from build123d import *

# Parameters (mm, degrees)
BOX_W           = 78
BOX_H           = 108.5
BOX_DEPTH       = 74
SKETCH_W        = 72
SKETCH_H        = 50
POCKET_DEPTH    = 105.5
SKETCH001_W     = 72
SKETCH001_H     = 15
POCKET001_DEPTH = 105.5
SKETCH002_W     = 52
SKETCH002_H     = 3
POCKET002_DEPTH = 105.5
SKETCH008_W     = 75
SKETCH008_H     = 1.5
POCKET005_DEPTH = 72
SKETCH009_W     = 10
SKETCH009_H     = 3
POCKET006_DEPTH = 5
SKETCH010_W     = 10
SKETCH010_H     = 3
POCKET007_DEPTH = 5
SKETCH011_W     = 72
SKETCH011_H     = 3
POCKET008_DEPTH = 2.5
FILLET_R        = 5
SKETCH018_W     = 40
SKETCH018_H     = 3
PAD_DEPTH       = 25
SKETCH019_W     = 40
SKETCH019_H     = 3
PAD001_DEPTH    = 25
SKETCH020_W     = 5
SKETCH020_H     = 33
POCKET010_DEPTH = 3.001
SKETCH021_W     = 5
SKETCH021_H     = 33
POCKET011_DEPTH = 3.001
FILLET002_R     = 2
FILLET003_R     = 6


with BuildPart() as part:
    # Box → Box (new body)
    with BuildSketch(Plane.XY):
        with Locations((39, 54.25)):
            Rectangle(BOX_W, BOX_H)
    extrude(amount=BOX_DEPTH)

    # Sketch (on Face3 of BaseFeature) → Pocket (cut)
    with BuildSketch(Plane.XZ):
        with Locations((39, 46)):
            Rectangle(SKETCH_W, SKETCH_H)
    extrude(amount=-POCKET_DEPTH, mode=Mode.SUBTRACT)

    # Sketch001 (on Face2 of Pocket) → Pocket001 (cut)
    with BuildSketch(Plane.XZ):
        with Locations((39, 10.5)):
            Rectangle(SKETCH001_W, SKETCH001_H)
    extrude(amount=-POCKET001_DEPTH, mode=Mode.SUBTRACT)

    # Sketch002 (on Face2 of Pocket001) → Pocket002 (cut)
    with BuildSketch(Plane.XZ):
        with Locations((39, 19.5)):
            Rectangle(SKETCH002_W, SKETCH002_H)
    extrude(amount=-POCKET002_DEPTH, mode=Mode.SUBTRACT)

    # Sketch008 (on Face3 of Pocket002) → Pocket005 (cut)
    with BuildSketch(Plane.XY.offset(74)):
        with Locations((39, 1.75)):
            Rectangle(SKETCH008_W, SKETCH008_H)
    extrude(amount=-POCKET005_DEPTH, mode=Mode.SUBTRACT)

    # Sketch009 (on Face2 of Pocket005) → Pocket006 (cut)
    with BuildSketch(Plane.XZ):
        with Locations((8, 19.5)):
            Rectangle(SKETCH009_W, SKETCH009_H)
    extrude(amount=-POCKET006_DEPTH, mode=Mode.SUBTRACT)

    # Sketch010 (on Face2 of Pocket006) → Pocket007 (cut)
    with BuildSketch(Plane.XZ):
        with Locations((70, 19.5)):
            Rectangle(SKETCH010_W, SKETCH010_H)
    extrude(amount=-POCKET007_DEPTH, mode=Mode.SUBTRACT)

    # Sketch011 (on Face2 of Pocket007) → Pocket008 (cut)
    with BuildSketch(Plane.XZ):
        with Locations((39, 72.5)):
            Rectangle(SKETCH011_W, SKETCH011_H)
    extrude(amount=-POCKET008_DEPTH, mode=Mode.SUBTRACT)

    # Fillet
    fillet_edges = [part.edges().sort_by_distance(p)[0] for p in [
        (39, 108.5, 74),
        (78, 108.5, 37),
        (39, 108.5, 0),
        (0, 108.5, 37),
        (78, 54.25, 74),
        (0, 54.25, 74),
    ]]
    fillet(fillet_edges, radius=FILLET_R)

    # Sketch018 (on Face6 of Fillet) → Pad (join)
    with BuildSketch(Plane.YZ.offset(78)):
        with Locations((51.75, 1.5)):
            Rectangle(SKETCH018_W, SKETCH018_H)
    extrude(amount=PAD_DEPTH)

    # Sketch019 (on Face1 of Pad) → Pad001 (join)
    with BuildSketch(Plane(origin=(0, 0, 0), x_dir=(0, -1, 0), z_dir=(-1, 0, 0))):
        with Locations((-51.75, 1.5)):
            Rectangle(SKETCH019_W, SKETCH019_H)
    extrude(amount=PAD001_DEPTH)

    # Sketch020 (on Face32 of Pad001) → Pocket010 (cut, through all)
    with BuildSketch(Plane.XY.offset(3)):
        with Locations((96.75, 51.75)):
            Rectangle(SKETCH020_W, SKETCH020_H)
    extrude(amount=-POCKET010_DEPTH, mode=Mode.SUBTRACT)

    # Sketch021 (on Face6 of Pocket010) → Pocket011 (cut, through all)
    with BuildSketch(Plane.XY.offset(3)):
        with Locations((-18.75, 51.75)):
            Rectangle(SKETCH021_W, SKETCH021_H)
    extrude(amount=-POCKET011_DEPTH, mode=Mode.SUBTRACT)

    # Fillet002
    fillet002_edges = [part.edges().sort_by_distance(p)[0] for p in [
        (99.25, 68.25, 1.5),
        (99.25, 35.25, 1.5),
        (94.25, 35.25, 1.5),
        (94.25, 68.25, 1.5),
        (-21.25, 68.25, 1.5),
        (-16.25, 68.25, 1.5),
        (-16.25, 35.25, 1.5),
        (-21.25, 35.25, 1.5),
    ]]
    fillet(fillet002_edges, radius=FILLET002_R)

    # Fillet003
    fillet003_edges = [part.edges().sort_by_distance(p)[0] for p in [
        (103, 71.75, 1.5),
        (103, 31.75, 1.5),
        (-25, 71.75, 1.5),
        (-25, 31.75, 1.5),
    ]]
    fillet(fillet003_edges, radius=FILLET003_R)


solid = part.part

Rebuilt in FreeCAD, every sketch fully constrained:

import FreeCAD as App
import Part
import Sketcher
from FreeCAD import Vector


def edges_at(feature, points):
    """Names of the edges that pass closest to the given points."""
    edges = feature.Shape.Edges
    near = lambda p: min(range(len(edges)), key=lambda i: edges[i].distToShape(Part.Vertex(*p))[0])
    return sorted({f"Edge{near(p) + 1}" for p in points})

doc = App.newDocument("Part")
params = doc.addObject("Spreadsheet::Sheet", "Params")
for row, (alias, value) in enumerate([
    ("sketch1_width", "78 mm"),
    ("sketch1_height", "108.5 mm"),
    ("pad1_length", "74 mm"),
    ("sketch2_width", "72 mm"),
    ("sketch2_height", "50 mm"),
    ("pocket1_length", "105.5 mm"),
    ("sketch3_width", "72 mm"),
    ("sketch3_height", "15 mm"),
    ("pocket2_length", "105.5 mm"),
    ("sketch4_width", "52 mm"),
    ("sketch4_height", "3 mm"),
    ("pocket3_length", "105.5 mm"),
    ("sketch5_width", "75 mm"),
    ("sketch5_height", "1.5 mm"),
    ("pocket4_length", "72 mm"),
    ("sketch6_width", "10 mm"),
    ("sketch6_height", "3 mm"),
    ("pocket5_length", "5 mm"),
    ("sketch7_width", "10 mm"),
    ("sketch7_height", "3 mm"),
    ("pocket6_length", "5 mm"),
    ("sketch8_width", "72 mm"),
    ("sketch8_height", "3 mm"),
    ("pocket7_length", "2.5 mm"),
    ("fillet_radius", "5 mm"),
    ("sketch9_width", "40 mm"),
    ("sketch9_height", "3 mm"),
    ("pad2_length", "25 mm"),
    ("sketch10_width", "40 mm"),
    ("sketch10_height", "3 mm"),
    ("pad3_length", "25 mm"),
    ("sketch11_width", "5 mm"),
    ("sketch11_height", "33 mm"),
    ("sketch12_width", "5 mm"),
    ("sketch12_height", "33 mm"),
    ("fillet2_radius", "2 mm"),
    ("fillet3_radius", "6 mm"),
], start=1):
    params.set(f"A{row}", alias)
    params.set(f"B{row}", "=" + value)
    params.setAlias(f"B{row}", alias)

body = doc.addObject("PartDesign::Body", "Body")

sketch1 = body.newObject("Sketcher::SketchObject", "Sketch")
sketch1.AttachmentSupport = (doc.getObject("XY_Plane"), [""])
sketch1.MapMode = "FlatFace"
sketch1.addGeometry(Part.LineSegment(Vector(0, 108, 0), Vector(0, 0, 0)), False)
sketch1.addGeometry(Part.LineSegment(Vector(0, 0, 0), Vector(78, 0, 0)), False)
sketch1.addGeometry(Part.LineSegment(Vector(78, 0, 0), Vector(78, 108, 0)), False)
sketch1.addGeometry(Part.LineSegment(Vector(78, 108, 0), Vector(0, 108, 0)), False)
sketch1.addConstraint(Sketcher.Constraint("Coincident", 0, 2, 1, 1))
sketch1.addConstraint(Sketcher.Constraint("Coincident", 1, 2, 2, 1))
sketch1.addConstraint(Sketcher.Constraint("Coincident", 2, 2, 3, 1))
sketch1.addConstraint(Sketcher.Constraint("Coincident", 3, 2, 0, 1))
sketch1.addConstraint(Sketcher.Constraint("Vertical", 0))
sketch1.addConstraint(Sketcher.Constraint("Horizontal", 1))
sketch1.addConstraint(Sketcher.Constraint("Vertical", 2))
sketch1.addConstraint(Sketcher.Constraint("Horizontal", 3))
sketch1.addConstraint(Sketcher.Constraint("Coincident", 0, 2, -1, 1))
sketch1.addConstraint(Sketcher.Constraint("DistanceX", 1, 1, 1, 2, 78.0))
sketch1.addConstraint(Sketcher.Constraint("DistanceY", 0, 2, 0, 1, 108.5))
sketch1.setExpression("Constraints[9]", "Params.sketch1_width")
sketch1.setExpression("Constraints[10]", "Params.sketch1_height")
pad1 = body.newObject("PartDesign::Pad", "Pad")
pad1.Profile = sketch1
pad1.setExpression("Length", "Params.pad1_length")

sketch2 = body.newObject("Sketcher::SketchObject", "Sketch001")
sketch2.AttachmentSupport = (doc.getObject("XZ_Plane"), [""])
sketch2.MapMode = "FlatFace"
sketch2.addGeometry(Part.LineSegment(Vector(3, 71, 0), Vector(3, 21, 0)), False)
sketch2.addGeometry(Part.LineSegment(Vector(3, 21, 0), Vector(75, 21, 0)), False)
sketch2.addGeometry(Part.LineSegment(Vector(75, 21, 0), Vector(75, 71, 0)), False)
sketch2.addGeometry(Part.LineSegment(Vector(75, 71, 0), Vector(3, 71, 0)), False)
sketch2.addConstraint(Sketcher.Constraint("Coincident", 0, 2, 1, 1))
sketch2.addConstraint(Sketcher.Constraint("Coincident", 1, 2, 2, 1))
sketch2.addConstraint(Sketcher.Constraint("Coincident", 2, 2, 3, 1))
sketch2.addConstraint(Sketcher.Constraint("Coincident", 3, 2, 0, 1))
sketch2.addConstraint(Sketcher.Constraint("Vertical", 0))
sketch2.addConstraint(Sketcher.Constraint("Horizontal", 1))
sketch2.addConstraint(Sketcher.Constraint("Vertical", 2))
sketch2.addConstraint(Sketcher.Constraint("Horizontal", 3))
sketch2.addConstraint(Sketcher.Constraint("DistanceX", 1, 1, 1, 2, 72.0))
sketch2.addConstraint(Sketcher.Constraint("DistanceY", 0, 2, 0, 1, 50.0))
sketch2.addConstraint(Sketcher.Constraint("DistanceX", -1, 1, 0, 2, 3.0))
sketch2.addConstraint(Sketcher.Constraint("DistanceY", -1, 1, 0, 2, 21.0))
sketch2.setExpression("Constraints[8]", "Params.sketch2_width")
sketch2.setExpression("Constraints[9]", "Params.sketch2_height")
pocket1 = body.newObject("PartDesign::Pocket", "Pocket")
pocket1.Profile = sketch2
pocket1.setExpression("Length", "Params.pocket1_length")

sketch3 = body.newObject("Sketcher::SketchObject", "Sketch002")
sketch3.AttachmentSupport = (doc.getObject("XZ_Plane"), [""])
sketch3.MapMode = "FlatFace"
sketch3.addGeometry(Part.LineSegment(Vector(3, 18, 0), Vector(3, 3, 0)), False)
sketch3.addGeometry(Part.LineSegment(Vector(3, 3, 0), Vector(75, 3, 0)), False)
sketch3.addGeometry(Part.LineSegment(Vector(75, 3, 0), Vector(75, 18, 0)), False)
sketch3.addGeometry(Part.LineSegment(Vector(75, 18, 0), Vector(3, 18, 0)), False)
sketch3.addConstraint(Sketcher.Constraint("Coincident", 0, 2, 1, 1))
sketch3.addConstraint(Sketcher.Constraint("Coincident", 1, 2, 2, 1))
sketch3.addConstraint(Sketcher.Constraint("Coincident", 2, 2, 3, 1))
sketch3.addConstraint(Sketcher.Constraint("Coincident", 3, 2, 0, 1))
sketch3.addConstraint(Sketcher.Constraint("Vertical", 0))
sketch3.addConstraint(Sketcher.Constraint("Horizontal", 1))
sketch3.addConstraint(Sketcher.Constraint("Vertical", 2))
sketch3.addConstraint(Sketcher.Constraint("Horizontal", 3))
sketch3.addConstraint(Sketcher.Constraint("DistanceX", 1, 1, 1, 2, 72.0))
sketch3.addConstraint(Sketcher.Constraint("DistanceY", 0, 2, 0, 1, 15.0))
sketch3.addConstraint(Sketcher.Constraint("DistanceX", -1, 1, 0, 2, 3.0))
sketch3.addConstraint(Sketcher.Constraint("DistanceY", -1, 1, 0, 2, 3.0))
sketch3.setExpression("Constraints[8]", "Params.sketch3_width")
sketch3.setExpression("Constraints[9]", "Params.sketch3_height")
pocket2 = body.newObject("PartDesign::Pocket", "Pocket001")
pocket2.Profile = sketch3
pocket2.setExpression("Length", "Params.pocket2_length")

sketch4 = body.newObject("Sketcher::SketchObject", "Sketch003")
sketch4.AttachmentSupport = (doc.getObject("XZ_Plane"), [""])
sketch4.MapMode = "FlatFace"
sketch4.addGeometry(Part.LineSegment(Vector(13, 21, 0), Vector(13, 18, 0)), False)
sketch4.addGeometry(Part.LineSegment(Vector(13, 18, 0), Vector(65, 18, 0)), False)
sketch4.addGeometry(Part.LineSegment(Vector(65, 18, 0), Vector(65, 21, 0)), False)
sketch4.addGeometry(Part.LineSegment(Vector(65, 21, 0), Vector(13, 21, 0)), False)
sketch4.addConstraint(Sketcher.Constraint("Coincident", 0, 2, 1, 1))
sketch4.addConstraint(Sketcher.Constraint("Coincident", 1, 2, 2, 1))
sketch4.addConstraint(Sketcher.Constraint("Coincident", 2, 2, 3, 1))
sketch4.addConstraint(Sketcher.Constraint("Coincident", 3, 2, 0, 1))
sketch4.addConstraint(Sketcher.Constraint("Vertical", 0))
sketch4.addConstraint(Sketcher.Constraint("Horizontal", 1))
sketch4.addConstraint(Sketcher.Constraint("Vertical", 2))
sketch4.addConstraint(Sketcher.Constraint("Horizontal", 3))
sketch4.addConstraint(Sketcher.Constraint("DistanceX", 1, 1, 1, 2, 52.0))
sketch4.addConstraint(Sketcher.Constraint("DistanceY", 0, 2, 0, 1, 3.0))
sketch4.addConstraint(Sketcher.Constraint("DistanceX", -1, 1, 0, 2, 13.0))
sketch4.addConstraint(Sketcher.Constraint("DistanceY", -1, 1, 0, 2, 18.0))
sketch4.setExpression("Constraints[8]", "Params.sketch4_width")
sketch4.setExpression("Constraints[9]", "Params.sketch4_height")
pocket3 = body.newObject("PartDesign::Pocket", "Pocket002")
pocket3.Profile = sketch4
pocket3.setExpression("Length", "Params.pocket3_length")

sketch5 = body.newObject("Sketcher::SketchObject", "Sketch004")
sketch5.AttachmentSupport = (doc.getObject("XY_Plane"), [""])
sketch5.MapMode = "FlatFace"
sketch5.AttachmentOffset = App.Placement(Vector(0, 0, 74), App.Rotation())
sketch5.addGeometry(Part.LineSegment(Vector(1.5, 2.5, 0), Vector(1.5, 1, 0)), False)
sketch5.addGeometry(Part.LineSegment(Vector(1.5, 1, 0), Vector(76.5, 1, 0)), False)
sketch5.addGeometry(Part.LineSegment(Vector(76.5, 1, 0), Vector(76.5, 2.5, 0)), False)
sketch5.addGeometry(Part.LineSegment(Vector(76.5, 2.5, 0), Vector(1.5, 2.5, 0)), False)
sketch5.addConstraint(Sketcher.Constraint("Coincident", 0, 2, 1, 1))
sketch5.addConstraint(Sketcher.Constraint("Coincident", 1, 2, 2, 1))
sketch5.addConstraint(Sketcher.Constraint("Coincident", 2, 2, 3, 1))
sketch5.addConstraint(Sketcher.Constraint("Coincident", 3, 2, 0, 1))
sketch5.addConstraint(Sketcher.Constraint("Vertical", 0))
sketch5.addConstraint(Sketcher.Constraint("Horizontal", 1))
sketch5.addConstraint(Sketcher.Constraint("Vertical", 2))
sketch5.addConstraint(Sketcher.Constraint("Horizontal", 3))
sketch5.addConstraint(Sketcher.Constraint("DistanceX", 1, 1, 1, 2, 75.0))
sketch5.addConstraint(Sketcher.Constraint("DistanceY", 0, 2, 0, 1, 1.5))
sketch5.addConstraint(Sketcher.Constraint("DistanceY", -1, 1, 0, 2, 1.0))
sketch5.addConstraint(Sketcher.Constraint("DistanceX", -1, 1, 0, 2, 1.5))
sketch5.setExpression("Constraints[8]", "Params.sketch5_width")
sketch5.setExpression("Constraints[9]", "Params.sketch5_height")
pocket4 = body.newObject("PartDesign::Pocket", "Pocket003")
pocket4.Profile = sketch5
pocket4.setExpression("Length", "Params.pocket4_length")

sketch6 = body.newObject("Sketcher::SketchObject", "Sketch005")
sketch6.AttachmentSupport = (doc.getObject("XZ_Plane"), [""])
sketch6.MapMode = "FlatFace"
sketch6.addGeometry(Part.LineSegment(Vector(3, 21, 0), Vector(3, 18, 0)), False)
sketch6.addGeometry(Part.LineSegment(Vector(3, 18, 0), Vector(13, 18, 0)), False)
sketch6.addGeometry(Part.LineSegment(Vector(13, 18, 0), Vector(13, 21, 0)), False)
sketch6.addGeometry(Part.LineSegment(Vector(13, 21, 0), Vector(3, 21, 0)), False)
sketch6.addConstraint(Sketcher.Constraint("Coincident", 0, 2, 1, 1))
sketch6.addConstraint(Sketcher.Constraint("Coincident", 1, 2, 2, 1))
sketch6.addConstraint(Sketcher.Constraint("Coincident", 2, 2, 3, 1))
sketch6.addConstraint(Sketcher.Constraint("Coincident", 3, 2, 0, 1))
sketch6.addConstraint(Sketcher.Constraint("Vertical", 0))
sketch6.addConstraint(Sketcher.Constraint("Horizontal", 1))
sketch6.addConstraint(Sketcher.Constraint("Vertical", 2))
sketch6.addConstraint(Sketcher.Constraint("Horizontal", 3))
sketch6.addConstraint(Sketcher.Constraint("DistanceX", 1, 1, 1, 2, 10.0))
sketch6.addConstraint(Sketcher.Constraint("DistanceY", 0, 2, 0, 1, 3.0))
sketch6.addConstraint(Sketcher.Constraint("DistanceX", -1, 1, 0, 2, 3.0))
sketch6.addConstraint(Sketcher.Constraint("DistanceY", -1, 1, 0, 2, 18.0))
sketch6.setExpression("Constraints[8]", "Params.sketch6_width")
sketch6.setExpression("Constraints[9]", "Params.sketch6_height")
pocket5 = body.newObject("PartDesign::Pocket", "Pocket004")
pocket5.Profile = sketch6
pocket5.setExpression("Length", "Params.pocket5_length")

sketch7 = body.newObject("Sketcher::SketchObject", "Sketch006")
sketch7.AttachmentSupport = (doc.getObject("XZ_Plane"), [""])
sketch7.MapMode = "FlatFace"
sketch7.addGeometry(Part.LineSegment(Vector(65, 21, 0), Vector(65, 18, 0)), False)
sketch7.addGeometry(Part.LineSegment(Vector(65, 18, 0), Vector(75, 18, 0)), False)
sketch7.addGeometry(Part.LineSegment(Vector(75, 18, 0), Vector(75, 21, 0)), False)
sketch7.addGeometry(Part.LineSegment(Vector(75, 21, 0), Vector(65, 21, 0)), False)
sketch7.addConstraint(Sketcher.Constraint("Coincident", 0, 2, 1, 1))
sketch7.addConstraint(Sketcher.Constraint("Coincident", 1, 2, 2, 1))
sketch7.addConstraint(Sketcher.Constraint("Coincident", 2, 2, 3, 1))
sketch7.addConstraint(Sketcher.Constraint("Coincident", 3, 2, 0, 1))
sketch7.addConstraint(Sketcher.Constraint("Vertical", 0))
sketch7.addConstraint(Sketcher.Constraint("Horizontal", 1))
sketch7.addConstraint(Sketcher.Constraint("Vertical", 2))
sketch7.addConstraint(Sketcher.Constraint("Horizontal", 3))
sketch7.addConstraint(Sketcher.Constraint("DistanceX", 1, 1, 1, 2, 10.0))
sketch7.addConstraint(Sketcher.Constraint("DistanceY", 0, 2, 0, 1, 3.0))
sketch7.addConstraint(Sketcher.Constraint("DistanceX", -1, 1, 0, 2, 65.0))
sketch7.addConstraint(Sketcher.Constraint("DistanceY", -1, 1, 0, 2, 18.0))
sketch7.setExpression("Constraints[8]", "Params.sketch7_width")
sketch7.setExpression("Constraints[9]", "Params.sketch7_height")
pocket6 = body.newObject("PartDesign::Pocket", "Pocket005")
pocket6.Profile = sketch7
pocket6.setExpression("Length", "Params.pocket6_length")

sketch8 = body.newObject("Sketcher::SketchObject", "Sketch007")
sketch8.AttachmentSupport = (doc.getObject("XZ_Plane"), [""])
sketch8.MapMode = "FlatFace"
sketch8.addGeometry(Part.LineSegment(Vector(3, 74, 0), Vector(3, 71, 0)), False)
sketch8.addGeometry(Part.LineSegment(Vector(3, 71, 0), Vector(75, 71, 0)), False)
sketch8.addGeometry(Part.LineSegment(Vector(75, 71, 0), Vector(75, 74, 0)), False)
sketch8.addGeometry(Part.LineSegment(Vector(75, 74, 0), Vector(3, 74, 0)), False)
sketch8.addConstraint(Sketcher.Constraint("Coincident", 0, 2, 1, 1))
sketch8.addConstraint(Sketcher.Constraint("Coincident", 1, 2, 2, 1))
sketch8.addConstraint(Sketcher.Constraint("Coincident", 2, 2, 3, 1))
sketch8.addConstraint(Sketcher.Constraint("Coincident", 3, 2, 0, 1))
sketch8.addConstraint(Sketcher.Constraint("Vertical", 0))
sketch8.addConstraint(Sketcher.Constraint("Horizontal", 1))
sketch8.addConstraint(Sketcher.Constraint("Vertical", 2))
sketch8.addConstraint(Sketcher.Constraint("Horizontal", 3))
sketch8.addConstraint(Sketcher.Constraint("DistanceX", 1, 1, 1, 2, 72.0))
sketch8.addConstraint(Sketcher.Constraint("DistanceY", 0, 2, 0, 1, 3.0))
sketch8.addConstraint(Sketcher.Constraint("DistanceX", -1, 1, 0, 2, 3.0))
sketch8.addConstraint(Sketcher.Constraint("DistanceY", -1, 1, 0, 2, 71.0))
sketch8.setExpression("Constraints[8]", "Params.sketch8_width")
sketch8.setExpression("Constraints[9]", "Params.sketch8_height")
pocket7 = body.newObject("PartDesign::Pocket", "Pocket006")
pocket7.Profile = sketch8
pocket7.setExpression("Length", "Params.pocket7_length")
doc.recompute()

fillet = body.newObject("PartDesign::Fillet", "Fillet")
fillet.Base = (pocket7, edges_at(pocket7, [
    (39, 108.5, 74),
    (78, 108.5, 37),
    (39, 108.5, 0),
    (0, 108.5, 37),
    (78, 54.25, 74),
    (0, 54.25, 74),
]))
fillet.setExpression("Radius", "Params.fillet_radius")

sketch9 = body.newObject("Sketcher::SketchObject", "Sketch008")
sketch9.AttachmentSupport = (doc.getObject("YZ_Plane"), [""])
sketch9.MapMode = "FlatFace"
sketch9.AttachmentOffset = App.Placement(Vector(0, 0, 78), App.Rotation())
sketch9.addGeometry(Part.LineSegment(Vector(31.8, 3, 0), Vector(31.8, 0, 0)), False)
sketch9.addGeometry(Part.LineSegment(Vector(31.8, 0, 0), Vector(71.8, 0, 0)), False)
sketch9.addGeometry(Part.LineSegment(Vector(71.8, 0, 0), Vector(71.8, 3, 0)), False)
sketch9.addGeometry(Part.LineSegment(Vector(71.8, 3, 0), Vector(31.8, 3, 0)), False)
sketch9.addConstraint(Sketcher.Constraint("Coincident", 0, 2, 1, 1))
sketch9.addConstraint(Sketcher.Constraint("Coincident", 1, 2, 2, 1))
sketch9.addConstraint(Sketcher.Constraint("Coincident", 2, 2, 3, 1))
sketch9.addConstraint(Sketcher.Constraint("Coincident", 3, 2, 0, 1))
sketch9.addConstraint(Sketcher.Constraint("Vertical", 0))
sketch9.addConstraint(Sketcher.Constraint("Horizontal", 1))
sketch9.addConstraint(Sketcher.Constraint("Vertical", 2))
sketch9.addConstraint(Sketcher.Constraint("Horizontal", 3))
sketch9.addConstraint(Sketcher.Constraint("PointOnObject", 0, 2, -1))
sketch9.addConstraint(Sketcher.Constraint("DistanceX", 1, 1, 1, 2, 40.0))
sketch9.addConstraint(Sketcher.Constraint("DistanceY", 0, 2, 0, 1, 3.0))
sketch9.addConstraint(Sketcher.Constraint("DistanceX", -1, 1, 0, 2, 31.75))
sketch9.setExpression("Constraints[9]", "Params.sketch9_width")
sketch9.setExpression("Constraints[10]", "Params.sketch9_height")
pad2 = body.newObject("PartDesign::Pad", "Pad001")
pad2.Profile = sketch9
pad2.setExpression("Length", "Params.pad2_length")

sketch10 = body.newObject("Sketcher::SketchObject", "Sketch009")
sketch10.AttachmentSupport = (doc.getObject("YZ_Plane"), [""])
sketch10.MapMode = "FlatFace"
sketch10.addGeometry(Part.LineSegment(Vector(71.8, 3, 0), Vector(71.8, 0, 0)), False)
sketch10.addGeometry(Part.LineSegment(Vector(71.8, 0, 0), Vector(31.8, 0, 0)), False)
sketch10.addGeometry(Part.LineSegment(Vector(31.8, 0, 0), Vector(31.8, 3, 0)), False)
sketch10.addGeometry(Part.LineSegment(Vector(31.8, 3, 0), Vector(71.8, 3, 0)), False)
sketch10.addConstraint(Sketcher.Constraint("Coincident", 0, 2, 1, 1))
sketch10.addConstraint(Sketcher.Constraint("Coincident", 1, 2, 2, 1))
sketch10.addConstraint(Sketcher.Constraint("Coincident", 2, 2, 3, 1))
sketch10.addConstraint(Sketcher.Constraint("Coincident", 3, 2, 0, 1))
sketch10.addConstraint(Sketcher.Constraint("Vertical", 0))
sketch10.addConstraint(Sketcher.Constraint("Horizontal", 1))
sketch10.addConstraint(Sketcher.Constraint("Vertical", 2))
sketch10.addConstraint(Sketcher.Constraint("Horizontal", 3))
sketch10.addConstraint(Sketcher.Constraint("PointOnObject", 0, 2, -1))
sketch10.addConstraint(Sketcher.Constraint("DistanceX", 1, 2, 1, 1, 40.0))
sketch10.addConstraint(Sketcher.Constraint("DistanceY", 0, 2, 0, 1, 3.0))
sketch10.addConstraint(Sketcher.Constraint("DistanceX", -1, 1, 0, 2, 71.75))
sketch10.setExpression("Constraints[9]", "Params.sketch10_width")
sketch10.setExpression("Constraints[10]", "Params.sketch10_height")
pad3 = body.newObject("PartDesign::Pad", "Pad002")
pad3.Profile = sketch10
pad3.setExpression("Length", "Params.pad3_length")
pad3.Reversed = True

sketch11 = body.newObject("Sketcher::SketchObject", "Sketch010")
sketch11.AttachmentSupport = (doc.getObject("XY_Plane"), [""])
sketch11.MapMode = "FlatFace"
sketch11.AttachmentOffset = App.Placement(Vector(0, 0, 3), App.Rotation())
sketch11.addGeometry(Part.LineSegment(Vector(94, 68, 0), Vector(94, 35, 0)), False)
sketch11.addGeometry(Part.LineSegment(Vector(94, 35, 0), Vector(99, 35, 0)), False)
sketch11.addGeometry(Part.LineSegment(Vector(99, 35, 0), Vector(99, 68, 0)), False)
sketch11.addGeometry(Part.LineSegment(Vector(99, 68, 0), Vector(94, 68, 0)), False)
sketch11.addConstraint(Sketcher.Constraint("Coincident", 0, 2, 1, 1))
sketch11.addConstraint(Sketcher.Constraint("Coincident", 1, 2, 2, 1))
sketch11.addConstraint(Sketcher.Constraint("Coincident", 2, 2, 3, 1))
sketch11.addConstraint(Sketcher.Constraint("Coincident", 3, 2, 0, 1))
sketch11.addConstraint(Sketcher.Constraint("Vertical", 0))
sketch11.addConstraint(Sketcher.Constraint("Horizontal", 1))
sketch11.addConstraint(Sketcher.Constraint("Vertical", 2))
sketch11.addConstraint(Sketcher.Constraint("Horizontal", 3))
sketch11.addConstraint(Sketcher.Constraint("DistanceX", 1, 1, 1, 2, 5.0))
sketch11.addConstraint(Sketcher.Constraint("DistanceY", 0, 2, 0, 1, 33.0))
sketch11.addConstraint(Sketcher.Constraint("DistanceX", -1, 1, 0, 2, 94.25))
sketch11.addConstraint(Sketcher.Constraint("DistanceY", -1, 1, 0, 2, 35.25))
sketch11.setExpression("Constraints[8]", "Params.sketch11_width")
sketch11.setExpression("Constraints[9]", "Params.sketch11_height")
pocket8 = body.newObject("PartDesign::Pocket", "Pocket007")
pocket8.Profile = sketch11
pocket8.Type = "ThroughAll"

sketch12 = body.newObject("Sketcher::SketchObject", "Sketch011")
sketch12.AttachmentSupport = (doc.getObject("XY_Plane"), [""])
sketch12.MapMode = "FlatFace"
sketch12.AttachmentOffset = App.Placement(Vector(0, 0, 3), App.Rotation())
sketch12.addGeometry(Part.LineSegment(Vector(-21, 68, 0), Vector(-21, 35, 0)), False)
sketch12.addGeometry(Part.LineSegment(Vector(-21, 35, 0), Vector(-16, 35, 0)), False)
sketch12.addGeometry(Part.LineSegment(Vector(-16, 35, 0), Vector(-16, 68, 0)), False)
sketch12.addGeometry(Part.LineSegment(Vector(-16, 68, 0), Vector(-21, 68, 0)), False)
sketch12.addConstraint(Sketcher.Constraint("Coincident", 0, 2, 1, 1))
sketch12.addConstraint(Sketcher.Constraint("Coincident", 1, 2, 2, 1))
sketch12.addConstraint(Sketcher.Constraint("Coincident", 2, 2, 3, 1))
sketch12.addConstraint(Sketcher.Constraint("Coincident", 3, 2, 0, 1))
sketch12.addConstraint(Sketcher.Constraint("Vertical", 0))
sketch12.addConstraint(Sketcher.Constraint("Horizontal", 1))
sketch12.addConstraint(Sketcher.Constraint("Vertical", 2))
sketch12.addConstraint(Sketcher.Constraint("Horizontal", 3))
sketch12.addConstraint(Sketcher.Constraint("DistanceX", 1, 1, 1, 2, 5.0))
sketch12.addConstraint(Sketcher.Constraint("DistanceY", 0, 2, 0, 1, 33.0))
sketch12.addConstraint(Sketcher.Constraint("DistanceX", 0, 2, -1, 1, 21.25))
sketch12.addConstraint(Sketcher.Constraint("DistanceY", -1, 1, 0, 2, 35.25))
sketch12.setExpression("Constraints[8]", "Params.sketch12_width")
sketch12.setExpression("Constraints[9]", "Params.sketch12_height")
pocket9 = body.newObject("PartDesign::Pocket", "Pocket008")
pocket9.Profile = sketch12
pocket9.Type = "ThroughAll"
doc.recompute()

fillet2 = body.newObject("PartDesign::Fillet", "Fillet001")
fillet2.Base = (pocket9, edges_at(pocket9, [
    (99.25, 68.25, 1.5),
    (99.25, 35.25, 1.5),
    (94.25, 35.25, 1.5),
    (94.25, 68.25, 1.5),
    (-21.25, 68.25, 1.5),
    (-16.25, 68.25, 1.5),
    (-16.25, 35.25, 1.5),
    (-21.25, 35.25, 1.5),
]))
fillet2.setExpression("Radius", "Params.fillet2_radius")
doc.recompute()

fillet3 = body.newObject("PartDesign::Fillet", "Fillet002")
fillet3.Base = (fillet2, edges_at(fillet2, [
    (103, 71.75, 1.5),
    (103, 31.75, 1.5),
    (-25, 71.75, 1.5),
    (-25, 31.75, 1.5),
]))
fillet3.setExpression("Radius", "Params.fillet3_radius")

doc.recompute()
